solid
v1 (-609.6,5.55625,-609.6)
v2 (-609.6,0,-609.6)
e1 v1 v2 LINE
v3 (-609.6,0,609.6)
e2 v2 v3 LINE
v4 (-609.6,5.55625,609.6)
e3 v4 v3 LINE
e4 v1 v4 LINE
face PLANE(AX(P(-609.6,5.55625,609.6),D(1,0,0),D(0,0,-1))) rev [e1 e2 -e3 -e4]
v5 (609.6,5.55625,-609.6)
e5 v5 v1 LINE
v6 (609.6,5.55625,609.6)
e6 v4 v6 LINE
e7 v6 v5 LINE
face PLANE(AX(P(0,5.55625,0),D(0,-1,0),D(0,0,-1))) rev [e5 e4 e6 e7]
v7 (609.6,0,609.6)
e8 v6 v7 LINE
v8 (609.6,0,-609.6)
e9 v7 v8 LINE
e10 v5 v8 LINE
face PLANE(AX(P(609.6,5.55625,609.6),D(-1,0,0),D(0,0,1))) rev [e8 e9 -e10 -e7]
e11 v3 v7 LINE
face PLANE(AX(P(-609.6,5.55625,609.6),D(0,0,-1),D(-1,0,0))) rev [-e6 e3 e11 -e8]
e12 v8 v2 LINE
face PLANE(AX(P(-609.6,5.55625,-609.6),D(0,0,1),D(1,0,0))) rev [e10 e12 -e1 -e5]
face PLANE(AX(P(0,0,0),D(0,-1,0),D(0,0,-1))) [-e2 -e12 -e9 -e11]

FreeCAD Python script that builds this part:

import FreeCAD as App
import Part
import Sketcher

V = App.Vector
Q = App.Units.Quantity

doc = App.newDocument("Part")
params = doc.addObject("Spreadsheet::Sheet", "Params")
for row, (alias, value) in enumerate([
    ("sketch1_width", "48 in"),
    ("pad1_length", "0.21875 in"),
], start=1):
    params.set(f"A{row}", alias)
    params.set(f"B{row}", "=" + value)
    params.setAlias(f"B{row}", alias)

body = doc.addObject("PartDesign::Body", "Body")

sketch1 = body.newObject("Sketcher::SketchObject", "Sketch")
sketch1.AttachmentSupport = (doc.getObject("XZ_Plane"), [""])
sketch1.MapMode = "FlatFace"
sketch1.addGeometry([
    Part.LineSegment(V(-610, -610, 0), V(-610, 610, 0)),
    Part.LineSegment(V(-610, 610, 0), V(610, 610, 0)),
    Part.LineSegment(V(610, 610, 0), V(610, -610, 0)),
    Part.LineSegment(V(610, -610, 0), V(-610, -610, 0)),
], False)
sketch1.addConstraint([
    Sketcher.Constraint("Coincident", 0, 2, 1, 1),
    Sketcher.Constraint("Coincident", 1, 2, 2, 1),
    Sketcher.Constraint("Coincident", 2, 2, 3, 1),
    Sketcher.Constraint("Coincident", 3, 2, 0, 1),
    Sketcher.Constraint("Vertical", 0),
    Sketcher.Constraint("Horizontal", 1),
    Sketcher.Constraint("Vertical", 2),
    Sketcher.Constraint("Horizontal", 3),
    Sketcher.Constraint("Symmetric", 0, 2, 2, 2, -1, 1),
    Sketcher.Constraint("Equal", 3, 0),
    Sketcher.Constraint("DistanceX", 1, 1, 1, 2, Q("48 in")),
])
sketch1.setExpression("Constraints[10]", "Params.sketch1_width")
pad1 = body.newObject("PartDesign::Pad", "Pad")
pad1.Profile = sketch1
pad1.setExpression("Length", "Params.pad1_length")
pad1.Reversed = True

doc.recompute()
